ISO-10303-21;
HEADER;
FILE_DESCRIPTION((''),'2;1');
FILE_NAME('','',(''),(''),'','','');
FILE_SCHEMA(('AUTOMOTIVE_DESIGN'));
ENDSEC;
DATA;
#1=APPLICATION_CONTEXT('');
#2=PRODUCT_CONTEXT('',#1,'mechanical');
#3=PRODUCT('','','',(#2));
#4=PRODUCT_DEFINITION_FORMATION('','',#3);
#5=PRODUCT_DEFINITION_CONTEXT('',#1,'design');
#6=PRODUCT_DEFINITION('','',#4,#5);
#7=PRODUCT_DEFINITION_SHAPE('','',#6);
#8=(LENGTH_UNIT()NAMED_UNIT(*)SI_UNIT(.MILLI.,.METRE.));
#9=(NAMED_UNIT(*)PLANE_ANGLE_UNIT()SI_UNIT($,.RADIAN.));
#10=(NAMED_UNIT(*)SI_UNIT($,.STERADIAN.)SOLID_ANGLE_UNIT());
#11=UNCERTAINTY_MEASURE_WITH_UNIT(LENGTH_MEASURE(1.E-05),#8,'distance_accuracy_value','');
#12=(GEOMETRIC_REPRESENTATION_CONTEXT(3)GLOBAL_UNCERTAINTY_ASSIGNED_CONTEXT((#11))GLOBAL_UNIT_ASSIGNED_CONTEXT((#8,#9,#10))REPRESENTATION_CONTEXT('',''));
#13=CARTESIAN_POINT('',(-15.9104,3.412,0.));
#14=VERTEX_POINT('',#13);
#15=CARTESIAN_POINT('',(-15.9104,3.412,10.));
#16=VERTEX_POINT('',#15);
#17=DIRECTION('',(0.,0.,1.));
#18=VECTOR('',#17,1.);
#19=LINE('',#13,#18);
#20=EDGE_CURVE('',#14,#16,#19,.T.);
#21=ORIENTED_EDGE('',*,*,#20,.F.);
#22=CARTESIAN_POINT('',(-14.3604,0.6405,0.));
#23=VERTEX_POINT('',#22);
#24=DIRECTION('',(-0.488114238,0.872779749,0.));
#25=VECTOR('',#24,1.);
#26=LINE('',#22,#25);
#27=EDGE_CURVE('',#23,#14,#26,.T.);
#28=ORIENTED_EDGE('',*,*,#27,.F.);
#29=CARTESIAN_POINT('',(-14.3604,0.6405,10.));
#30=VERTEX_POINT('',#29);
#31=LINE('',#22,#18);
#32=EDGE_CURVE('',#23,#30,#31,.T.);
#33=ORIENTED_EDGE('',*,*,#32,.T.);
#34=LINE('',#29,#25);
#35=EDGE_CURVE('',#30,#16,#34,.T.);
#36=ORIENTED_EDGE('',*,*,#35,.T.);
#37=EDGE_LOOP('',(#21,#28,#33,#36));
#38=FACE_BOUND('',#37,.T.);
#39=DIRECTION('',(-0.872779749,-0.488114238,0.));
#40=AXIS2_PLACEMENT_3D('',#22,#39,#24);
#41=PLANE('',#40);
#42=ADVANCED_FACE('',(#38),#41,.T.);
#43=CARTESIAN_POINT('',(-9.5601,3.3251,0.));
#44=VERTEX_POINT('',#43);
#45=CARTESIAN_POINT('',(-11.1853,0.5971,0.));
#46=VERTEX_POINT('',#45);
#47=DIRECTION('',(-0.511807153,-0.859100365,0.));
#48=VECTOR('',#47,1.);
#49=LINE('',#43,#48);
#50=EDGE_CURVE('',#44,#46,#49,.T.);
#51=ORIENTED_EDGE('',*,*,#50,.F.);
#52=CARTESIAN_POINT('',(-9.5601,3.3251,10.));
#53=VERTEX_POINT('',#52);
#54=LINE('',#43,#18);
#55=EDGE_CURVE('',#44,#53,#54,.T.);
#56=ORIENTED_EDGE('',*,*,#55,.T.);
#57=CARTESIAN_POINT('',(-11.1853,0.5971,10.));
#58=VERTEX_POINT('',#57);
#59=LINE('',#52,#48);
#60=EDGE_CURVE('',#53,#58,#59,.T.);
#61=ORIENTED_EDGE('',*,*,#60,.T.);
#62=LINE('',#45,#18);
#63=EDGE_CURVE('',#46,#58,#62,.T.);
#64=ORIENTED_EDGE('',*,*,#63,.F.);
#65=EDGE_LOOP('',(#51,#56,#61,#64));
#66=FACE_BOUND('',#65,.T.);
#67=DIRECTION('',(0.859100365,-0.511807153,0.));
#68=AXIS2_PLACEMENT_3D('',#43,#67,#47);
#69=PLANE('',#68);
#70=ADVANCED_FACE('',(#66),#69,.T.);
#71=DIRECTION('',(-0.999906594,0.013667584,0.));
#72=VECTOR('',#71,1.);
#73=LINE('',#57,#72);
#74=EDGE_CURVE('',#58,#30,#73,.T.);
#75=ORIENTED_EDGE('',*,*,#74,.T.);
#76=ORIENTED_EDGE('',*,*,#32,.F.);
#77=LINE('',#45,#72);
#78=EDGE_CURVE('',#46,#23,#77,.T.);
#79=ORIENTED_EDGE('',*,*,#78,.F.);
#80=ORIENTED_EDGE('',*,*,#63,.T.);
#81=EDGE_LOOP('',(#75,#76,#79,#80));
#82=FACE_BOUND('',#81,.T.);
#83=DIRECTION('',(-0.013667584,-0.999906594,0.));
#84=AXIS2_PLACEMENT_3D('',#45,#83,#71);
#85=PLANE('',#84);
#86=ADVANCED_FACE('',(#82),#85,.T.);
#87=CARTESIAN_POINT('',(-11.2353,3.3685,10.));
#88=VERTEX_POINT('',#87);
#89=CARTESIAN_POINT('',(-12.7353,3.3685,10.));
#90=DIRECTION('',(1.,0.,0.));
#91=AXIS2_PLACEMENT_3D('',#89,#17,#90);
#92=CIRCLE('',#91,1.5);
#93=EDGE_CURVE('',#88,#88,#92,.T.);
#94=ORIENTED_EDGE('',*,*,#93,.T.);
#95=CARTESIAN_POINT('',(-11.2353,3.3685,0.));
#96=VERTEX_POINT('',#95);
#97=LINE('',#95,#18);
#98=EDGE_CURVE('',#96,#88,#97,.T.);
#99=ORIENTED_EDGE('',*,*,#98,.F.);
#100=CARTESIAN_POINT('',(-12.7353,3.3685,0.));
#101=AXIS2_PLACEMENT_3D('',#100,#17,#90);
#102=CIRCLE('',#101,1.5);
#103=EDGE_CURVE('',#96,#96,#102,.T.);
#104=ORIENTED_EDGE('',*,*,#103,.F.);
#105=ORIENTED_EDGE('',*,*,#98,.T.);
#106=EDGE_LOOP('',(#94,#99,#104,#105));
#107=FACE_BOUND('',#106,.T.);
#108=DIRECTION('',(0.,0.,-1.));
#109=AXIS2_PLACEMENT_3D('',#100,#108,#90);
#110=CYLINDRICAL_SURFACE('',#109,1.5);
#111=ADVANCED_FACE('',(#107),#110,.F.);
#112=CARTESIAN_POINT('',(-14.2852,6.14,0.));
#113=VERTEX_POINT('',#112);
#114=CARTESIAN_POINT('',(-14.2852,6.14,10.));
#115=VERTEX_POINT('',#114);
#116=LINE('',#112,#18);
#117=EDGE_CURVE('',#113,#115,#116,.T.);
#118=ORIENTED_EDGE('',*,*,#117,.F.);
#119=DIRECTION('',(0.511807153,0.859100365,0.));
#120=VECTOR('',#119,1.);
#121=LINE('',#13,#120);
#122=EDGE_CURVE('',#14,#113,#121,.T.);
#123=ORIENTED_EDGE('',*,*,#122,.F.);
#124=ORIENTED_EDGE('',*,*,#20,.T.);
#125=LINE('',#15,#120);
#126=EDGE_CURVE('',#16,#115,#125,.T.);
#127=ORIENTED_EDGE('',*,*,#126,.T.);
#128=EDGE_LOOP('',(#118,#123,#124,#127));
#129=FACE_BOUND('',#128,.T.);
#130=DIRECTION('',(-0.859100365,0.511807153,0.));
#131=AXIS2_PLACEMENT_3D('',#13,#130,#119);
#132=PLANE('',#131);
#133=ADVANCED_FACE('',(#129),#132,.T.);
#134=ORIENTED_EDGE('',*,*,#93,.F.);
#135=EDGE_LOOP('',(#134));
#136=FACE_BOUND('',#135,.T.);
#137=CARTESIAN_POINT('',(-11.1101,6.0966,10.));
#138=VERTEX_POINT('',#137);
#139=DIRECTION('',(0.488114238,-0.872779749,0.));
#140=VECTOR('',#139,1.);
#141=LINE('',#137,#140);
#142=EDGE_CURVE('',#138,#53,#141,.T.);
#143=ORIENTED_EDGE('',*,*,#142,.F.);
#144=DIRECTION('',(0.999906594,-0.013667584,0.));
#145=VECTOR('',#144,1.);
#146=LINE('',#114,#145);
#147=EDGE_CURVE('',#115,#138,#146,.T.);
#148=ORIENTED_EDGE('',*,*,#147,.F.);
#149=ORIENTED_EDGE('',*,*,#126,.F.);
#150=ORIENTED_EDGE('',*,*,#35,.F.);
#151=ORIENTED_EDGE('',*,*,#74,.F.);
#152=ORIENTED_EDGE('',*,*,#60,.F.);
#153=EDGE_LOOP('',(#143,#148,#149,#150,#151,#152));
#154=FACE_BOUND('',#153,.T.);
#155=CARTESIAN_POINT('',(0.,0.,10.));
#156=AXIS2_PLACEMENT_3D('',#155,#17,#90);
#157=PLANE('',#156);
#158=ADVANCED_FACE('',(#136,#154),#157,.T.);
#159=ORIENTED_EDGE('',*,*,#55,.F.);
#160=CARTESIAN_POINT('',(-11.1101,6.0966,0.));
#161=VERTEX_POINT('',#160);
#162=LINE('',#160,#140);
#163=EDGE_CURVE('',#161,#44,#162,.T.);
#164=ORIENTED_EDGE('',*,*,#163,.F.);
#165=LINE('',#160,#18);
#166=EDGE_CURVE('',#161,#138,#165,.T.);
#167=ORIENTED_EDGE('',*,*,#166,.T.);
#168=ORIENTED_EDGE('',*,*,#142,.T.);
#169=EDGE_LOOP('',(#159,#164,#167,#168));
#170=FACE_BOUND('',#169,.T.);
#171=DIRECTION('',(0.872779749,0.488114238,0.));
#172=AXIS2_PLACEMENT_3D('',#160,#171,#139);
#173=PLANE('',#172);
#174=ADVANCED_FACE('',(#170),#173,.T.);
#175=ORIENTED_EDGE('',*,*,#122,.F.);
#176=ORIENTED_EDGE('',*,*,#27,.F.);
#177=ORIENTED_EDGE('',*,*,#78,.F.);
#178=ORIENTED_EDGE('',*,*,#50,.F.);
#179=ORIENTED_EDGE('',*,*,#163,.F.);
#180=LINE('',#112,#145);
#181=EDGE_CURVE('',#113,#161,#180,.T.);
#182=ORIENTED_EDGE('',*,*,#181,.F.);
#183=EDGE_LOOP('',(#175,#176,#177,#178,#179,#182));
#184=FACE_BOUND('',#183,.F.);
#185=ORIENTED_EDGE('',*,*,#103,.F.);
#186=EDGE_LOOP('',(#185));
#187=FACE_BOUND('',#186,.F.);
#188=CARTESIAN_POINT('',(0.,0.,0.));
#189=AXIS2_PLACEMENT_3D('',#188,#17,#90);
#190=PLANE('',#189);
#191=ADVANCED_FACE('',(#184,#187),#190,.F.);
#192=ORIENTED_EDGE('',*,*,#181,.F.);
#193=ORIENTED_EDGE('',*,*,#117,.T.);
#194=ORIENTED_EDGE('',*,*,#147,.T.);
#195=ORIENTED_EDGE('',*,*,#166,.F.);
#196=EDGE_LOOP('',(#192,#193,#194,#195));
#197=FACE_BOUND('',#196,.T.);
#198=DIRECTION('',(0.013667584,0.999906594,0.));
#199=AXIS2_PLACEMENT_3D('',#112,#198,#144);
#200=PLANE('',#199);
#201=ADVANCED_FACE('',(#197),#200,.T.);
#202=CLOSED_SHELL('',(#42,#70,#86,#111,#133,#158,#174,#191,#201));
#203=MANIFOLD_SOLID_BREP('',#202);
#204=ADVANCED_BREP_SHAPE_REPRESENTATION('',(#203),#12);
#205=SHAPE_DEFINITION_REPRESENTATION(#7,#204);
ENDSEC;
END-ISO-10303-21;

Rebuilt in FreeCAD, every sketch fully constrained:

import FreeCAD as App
import Part
import Sketcher

V = App.Vector
Q = App.Units.Quantity

doc = App.newDocument("Part")
body = doc.addObject("PartDesign::Body", "Body")

# Sketch on XY plane
sketch1 = body.newObject("Sketcher::SketchObject", "Sketch")
sketch1.AttachmentSupport = (doc.getObject("XY_Plane"), [""])
sketch1.MapMode = "FlatFace"
sketch1.addGeometry(Part.LineSegment(V(-9.5601, 3.3251, 0), V(-11.1101, 6.0966, 0)), False)
sketch1.addGeometry(Part.LineSegment(V(-11.1101, 6.0966, 0), V(-14.2852, 6.14, 0)), False)
sketch1.addGeometry(Part.LineSegment(V(-14.2852, 6.14, 0), V(-15.9104, 3.412, 0)), False)
sketch1.addGeometry(Part.LineSegment(V(-15.9104, 3.412, 0), V(-14.3604, 0.6405, 0)), False)
sketch1.addGeometry(Part.LineSegment(V(-14.3604, 0.6405, 0), V(-11.1853, 0.5971, 0)), False)
sketch1.addGeometry(Part.LineSegment(V(-11.1853, 0.5971, 0), V(-9.5601, 3.3251, 0)), False)
sketch1.addGeometry(Part.Circle(V(-12.7353, 3.3685, 0), V(0, 0, 1), 1.5), False)
sketch1.addConstraint(Sketcher.Constraint("Coincident", 0, 2, 1, 1))
sketch1.addConstraint(Sketcher.Constraint("Coincident", 1, 2, 2, 1))
sketch1.addConstraint(Sketcher.Constraint("Coincident", 2, 2, 3, 1))
sketch1.addConstraint(Sketcher.Constraint("Coincident", 3, 2, 4, 1))
sketch1.addConstraint(Sketcher.Constraint("Coincident", 4, 2, 5, 1))
sketch1.addConstraint(Sketcher.Constraint("Coincident", 5, 2, 0, 1))
sketch1.addConstraint(Sketcher.Constraint("Diameter", 6, Q("3 mm")))
sketch1.addConstraint(Sketcher.Constraint("DistanceY", 3, 2, 1, 2, Q("5.4995 mm")))
sketch1.addConstraint(Sketcher.Constraint("DistanceY", 4, 2, 0, 2, Q("5.4995 mm")))
sketch1.addConstraint(Sketcher.Constraint("DistanceX", 1, 2, 4, 2, Q("3.1 mm")))
sketch1.addConstraint(Sketcher.Constraint("DistanceX", 0, 2, -1, 1, Q("11.11 mm")))
sketch1.addConstraint(Sketcher.Constraint("DistanceY", -1, 1, 1, 2, Q("6.14 mm")))
sketch1.addConstraint(Sketcher.Constraint("DistanceX", 5, 2, -1, 1, Q("9.56 mm")))
sketch1.addConstraint(Sketcher.Constraint("DistanceX", 1, 2, 6, 3, Q("1.55 mm")))
sketch1.addConstraint(Sketcher.Constraint("DistanceX", 2, 2, 3, 2, Q("1.55 mm")))
sketch1.addConstraint(Sketcher.Constraint("DistanceY", -1, 1, 2, 2, Q("3.412 mm")))
sketch1.addConstraint(Sketcher.Constraint("DistanceY", -1, 1, 4, 2, Q("0.597 mm")))
sketch1.addConstraint(Sketcher.Constraint("DistanceY", -1, 1, 5, 2, Q("3.325 mm")))
sketch1.addConstraint(Sketcher.Constraint("DistanceY", 6, 3, 0, 2, Q("2.728 mm")))
sketch1.addConstraint(Sketcher.Constraint("DistanceX", 1, 2, 0, 2, Q("3.175 mm")))
sketch1.addConstraint(Sketcher.Constraint("DistanceX", 2, 2, 6, 3, Q("3.175 mm")))
pad1 = body.newObject("PartDesign::Pad", "Pad")
pad1.Profile = sketch1
pad1.Length = 10

doc.recompute()
